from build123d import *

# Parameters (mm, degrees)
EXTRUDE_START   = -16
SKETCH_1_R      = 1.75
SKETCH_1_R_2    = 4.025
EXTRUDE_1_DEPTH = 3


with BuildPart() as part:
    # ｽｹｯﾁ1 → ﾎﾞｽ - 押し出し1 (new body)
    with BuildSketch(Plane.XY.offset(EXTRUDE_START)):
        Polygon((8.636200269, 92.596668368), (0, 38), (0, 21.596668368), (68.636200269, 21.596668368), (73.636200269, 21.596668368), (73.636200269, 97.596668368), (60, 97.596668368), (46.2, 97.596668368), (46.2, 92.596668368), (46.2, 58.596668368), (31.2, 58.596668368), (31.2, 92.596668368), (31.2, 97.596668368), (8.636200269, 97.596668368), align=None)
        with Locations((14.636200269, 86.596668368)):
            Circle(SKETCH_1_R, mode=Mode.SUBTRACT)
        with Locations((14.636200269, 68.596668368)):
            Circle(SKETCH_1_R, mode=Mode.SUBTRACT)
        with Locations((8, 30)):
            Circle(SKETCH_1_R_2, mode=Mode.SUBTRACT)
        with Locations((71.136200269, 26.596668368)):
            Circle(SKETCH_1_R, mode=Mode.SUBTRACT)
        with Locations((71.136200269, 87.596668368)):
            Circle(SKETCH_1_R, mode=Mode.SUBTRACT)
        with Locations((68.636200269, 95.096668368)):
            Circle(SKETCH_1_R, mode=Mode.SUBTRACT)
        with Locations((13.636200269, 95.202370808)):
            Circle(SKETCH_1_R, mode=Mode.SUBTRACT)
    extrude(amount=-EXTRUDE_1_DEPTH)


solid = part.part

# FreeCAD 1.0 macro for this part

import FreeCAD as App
import Part
import Sketcher

V = App.Vector


def add_polygon(sketch, points):
    """Adds a closed chain of lines whose ends are joined by coincident constraints."""
    first, n = sketch.GeometryCount, len(points)
    for a, b in zip(points, points[1:] + points[:1]):
        sketch.addGeometry(Part.LineSegment(App.Vector(*a, 0), App.Vector(*b, 0)), False)
    for i in range(n):
        sketch.addConstraint(Sketcher.Constraint("Coincident", first + i, 2, first + (i + 1) % n, 1))

doc = App.newDocument("Part")
body = doc.addObject("PartDesign::Body", "Body")

# Sketch on XY plane
sketch1 = body.newObject("Sketcher::SketchObject", "Sketch")
sketch1.AttachmentSupport = (doc.getObject("XY_Plane"), [""])
sketch1.MapMode = "FlatFace"
sketch1.AttachmentOffset = App.Placement(V(0, 0, -16), App.Rotation())
add_polygon(sketch1, [(8.6, 92.6), (0, 38), (0, 21.6), (73.6, 21.6), (73.6, 97.6), (46.2, 97.6), (46.2, 58.6), (31.2, 58.6), (31.2, 97.6), (8.6, 97.6)])  # lines 0-9
sketch1.addGeometry(Part.Circle(V(8, 30, 0), V(0, 0, 1), 4), False)  # 10
sketch1.addGeometry(Part.Circle(V(71.1, 26.6, 0), V(0, 0, 1), 1.8), False)  # 11
sketch1.addGeometry(Part.Circle(V(14.6, 68.6, 0), V(0, 0, 1), 1.8), False)  # 12
sketch1.addGeometry(Part.Circle(V(14.6, 86.6, 0), V(0, 0, 1), 1.8), False)  # 13
sketch1.addGeometry(Part.Circle(V(13.6, 95.2, 0), V(0, 0, 1), 1.8), False)  # 14
sketch1.addGeometry(Part.Circle(V(71.1, 87.6, 0), V(0, 0, 1), 1.8), False)  # 15
sketch1.addGeometry(Part.Circle(V(68.6, 95.1, 0), V(0, 0, 1), 1.8), False)  # 16
sketch1.addConstraint(Sketcher.Constraint("Vertical", 1))
sketch1.addConstraint(Sketcher.Constraint("Horizontal", 2))
sketch1.addConstraint(Sketcher.Constraint("Vertical", 3))
sketch1.addConstraint(Sketcher.Constraint("Horizontal", 4))
sketch1.addConstraint(Sketcher.Constraint("Vertical", 5))
sketch1.addConstraint(Sketcher.Constraint("Horizontal", 6))
sketch1.addConstraint(Sketcher.Constraint("Vertical", 7))
sketch1.addConstraint(Sketcher.Constraint("Horizontal", 8))
sketch1.addConstraint(Sketcher.Constraint("Vertical", 9))
sketch1.addConstraint(Sketcher.Constraint("Equal", 11, 12))
sketch1.addConstraint(Sketcher.Constraint("Equal", 12, 13))
sketch1.addConstraint(Sketcher.Constraint("Equal", 13, 14))
sketch1.addConstraint(Sketcher.Constraint("Equal", 14, 15))
sketch1.addConstraint(Sketcher.Constraint("Equal", 15, 16))
sketch1.addConstraint(Sketcher.Constraint("PointOnObject", 0, 2, -2))
sketch1.addConstraint(Sketcher.Constraint("Horizontal", 4, 2, 7, 2))
sketch1.addConstraint(Sketcher.Constraint("Vertical", 12, 3, 13, 3))
sketch1.addConstraint(Sketcher.Constraint("Vertical", 11, 3, 15, 3))
sketch1.addConstraint(Sketcher.Constraint("Diameter", 11, 3.5))
sketch1.addConstraint(Sketcher.Constraint("Diameter", 10, 8.05))
sketch1.addConstraint(Sketcher.Constraint("DistanceX", 6, 2, 6, 1, 15.0))
sketch1.addConstraint(Sketcher.Constraint("DistanceY", 3, 1, 3, 2, 76.0))
sketch1.addConstraint(Sketcher.Constraint("DistanceY", 5, 2, 5, 1, 39.0))
sketch1.addConstraint(Sketcher.Constraint("DistanceY", 9, 2, 9, 1, 5.0))
sketch1.addConstraint(Sketcher.Constraint("DistanceX", -1, 1, 10, 3, 8.0))
sketch1.addConstraint(Sketcher.Constraint("DistanceY", -1, 1, 10, 3, 30.0))
sketch1.addConstraint(Sketcher.Constraint("DistanceY", -1, 1, 0, 2, 38.0))
sketch1.addConstraint(Sketcher.Constraint("DistanceY", 11, 3, 12, 3, 42.0))
sketch1.addConstraint(Sketcher.Constraint("DistanceY", 12, 3, 13, 3, 18.0))
sketch1.addConstraint(Sketcher.Constraint("DistanceX", 14, 3, 13, 3, 1.0))
sketch1.addConstraint(Sketcher.Constraint("DistanceY", 13, 3, 15, 3, 1.0))
sketch1.addConstraint(Sketcher.Constraint("DistanceX", 13, 3, 16, 3, 54.0))
sketch1.addConstraint(Sketcher.Constraint("DistanceY", 1, 2, 12, 3, 47.0))
sketch1.addConstraint(Sketcher.Constraint("DistanceX", 16, 3, 2, 2, 5.0))
sketch1.addConstraint(Sketcher.Constraint("DistanceX", 8, 2, 14, 3, 5.0))
sketch1.addConstraint(Sketcher.Constraint("DistanceX", -1, 1, 4, 2, 46.2))
sketch1.addConstraint(Sketcher.Constraint("DistanceX", 12, 3, 11, 3, 56.5))
sketch1.addConstraint(Sketcher.Constraint("DistanceY", 15, 3, 16, 3, 7.5))
sketch1.addConstraint(Sketcher.Constraint("DistanceX", 2, 1, 2, 2, 73.6362))
sketch1.addConstraint(Sketcher.Constraint("DistanceY", 1, 2, 1, 1, 16.403332))
sketch1.addConstraint(Sketcher.Constraint("DistanceY", -1, 1, 14, 3, 95.202371))
pad1 = body.newObject("PartDesign::Pad", "Pad")
pad1.Profile = sketch1
pad1.Length = 3
pad1.Reversed = True

doc.recompute()
